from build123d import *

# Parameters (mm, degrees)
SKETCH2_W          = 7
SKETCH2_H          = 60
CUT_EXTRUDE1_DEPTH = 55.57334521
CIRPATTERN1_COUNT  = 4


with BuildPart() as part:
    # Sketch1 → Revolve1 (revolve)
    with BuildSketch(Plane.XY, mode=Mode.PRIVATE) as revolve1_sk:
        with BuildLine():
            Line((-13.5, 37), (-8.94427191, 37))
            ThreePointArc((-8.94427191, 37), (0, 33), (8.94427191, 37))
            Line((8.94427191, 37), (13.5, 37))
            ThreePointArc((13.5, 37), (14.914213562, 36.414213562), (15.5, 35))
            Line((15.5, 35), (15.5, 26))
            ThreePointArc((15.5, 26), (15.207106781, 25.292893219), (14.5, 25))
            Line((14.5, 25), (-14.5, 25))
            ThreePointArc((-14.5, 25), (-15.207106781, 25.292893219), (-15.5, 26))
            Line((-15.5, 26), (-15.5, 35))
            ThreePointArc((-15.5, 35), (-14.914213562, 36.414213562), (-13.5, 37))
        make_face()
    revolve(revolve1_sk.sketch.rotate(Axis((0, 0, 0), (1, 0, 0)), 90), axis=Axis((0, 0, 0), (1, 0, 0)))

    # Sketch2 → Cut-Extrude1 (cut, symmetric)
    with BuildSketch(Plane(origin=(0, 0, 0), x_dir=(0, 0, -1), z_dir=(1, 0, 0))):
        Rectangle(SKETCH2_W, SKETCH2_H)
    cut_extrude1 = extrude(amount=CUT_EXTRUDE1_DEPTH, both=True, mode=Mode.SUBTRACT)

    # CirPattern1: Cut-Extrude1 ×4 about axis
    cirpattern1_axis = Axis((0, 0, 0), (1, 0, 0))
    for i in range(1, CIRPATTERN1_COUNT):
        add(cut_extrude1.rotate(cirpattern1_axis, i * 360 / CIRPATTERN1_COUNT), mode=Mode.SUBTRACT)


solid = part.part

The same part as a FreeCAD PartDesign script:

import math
import FreeCAD as App
import Part
import Sketcher
from FreeCAD import Vector
Q = App.Units.Quantity

doc = App.newDocument("Part")
body = doc.addObject("PartDesign::Body", "Body")

# Sketch on XY plane
sketch1 = body.newObject("Sketcher::SketchObject", "Sketch")
sketch1.AttachmentSupport = (doc.getObject("XY_Plane"), [""])
sketch1.MapMode = "FlatFace"
sketch1.addGeometry(Part.LineSegment(Vector(-8.9, 37, 0), Vector(-13.5, 37, 0)), False)
sketch1.addGeometry(Part.ArcOfCircle(Part.Circle(Vector(-13.5, 35, 0), Vector(0, 0, 1), 2), math.radians(90), math.radians(180)), False)
sketch1.addGeometry(Part.LineSegment(Vector(-15.5, 35, 0), Vector(-15.5, 26, 0)), False)
sketch1.addGeometry(Part.ArcOfCircle(Part.Circle(Vector(-14.5, 26, 0), Vector(0, 0, 1), 1), math.radians(-180), math.radians(-90)), False)
sketch1.addGeometry(Part.LineSegment(Vector(-14.5, 25, 0), Vector(14.5, 25, 0)), False)
sketch1.addGeometry(Part.ArcOfCircle(Part.Circle(Vector(14.5, 26, 0), Vector(0, 0, 1), 1), math.radians(-90), math.radians(0)), False)
sketch1.addGeometry(Part.LineSegment(Vector(15.5, 26, 0), Vector(15.5, 35, 0)), False)
sketch1.addGeometry(Part.ArcOfCircle(Part.Circle(Vector(13.5, 35, 0), Vector(0, 0, 1), 2), math.radians(0), math.radians(90)), False)
sketch1.addGeometry(Part.LineSegment(Vector(13.5, 37, 0), Vector(8.9, 37, 0)), False)
sketch1.addGeometry(Part.ArcOfCircle(Part.Circle(Vector(0, 45, 0), Vector(0, 0, 1), 12), math.radians(-138), math.radians(-42)), False)
sketch1.addConstraint(Sketcher.Constraint("Tangent", 0, 2, 1, 1))
sketch1.addConstraint(Sketcher.Constraint("Tangent", 1, 2, 2, 1))
sketch1.addConstraint(Sketcher.Constraint("Tangent", 2, 2, 3, 1))
sketch1.addConstraint(Sketcher.Constraint("Tangent", 3, 2, 4, 1))
sketch1.addConstraint(Sketcher.Constraint("Tangent", 4, 2, 5, 1))
sketch1.addConstraint(Sketcher.Constraint("Tangent", 5, 2, 6, 1))
sketch1.addConstraint(Sketcher.Constraint("Tangent", 6, 2, 7, 1))
sketch1.addConstraint(Sketcher.Constraint("Tangent", 7, 2, 8, 1))
sketch1.addConstraint(Sketcher.Constraint("Coincident", 8, 2, 9, 2))
sketch1.addConstraint(Sketcher.Constraint("Coincident", 9, 1, 0, 1))
sketch1.addConstraint(Sketcher.Constraint("Horizontal", 0))
sketch1.addConstraint(Sketcher.Constraint("Vertical", 2))
sketch1.addConstraint(Sketcher.Constraint("Horizontal", 4))
sketch1.addConstraint(Sketcher.Constraint("Vertical", 6))
sketch1.addConstraint(Sketcher.Constraint("Horizontal", 8))
sketch1.addConstraint(Sketcher.Constraint("Equal", 3, 5))
sketch1.addConstraint(Sketcher.Constraint("Equal", 1, 7))
sketch1.addConstraint(Sketcher.Constraint("Symmetric", 1, 3, 7, 3, -2))
sketch1.addConstraint(Sketcher.Constraint("PointOnObject", 9, 3, -2))
sketch1.addConstraint(Sketcher.Constraint("Radius", 1, Q("2 mm")))
sketch1.addConstraint(Sketcher.Constraint("Radius", 3, Q("1 mm")))
sketch1.addConstraint(Sketcher.Constraint("Radius", 9, Q("12 mm")))
sketch1.addConstraint(Sketcher.Constraint("DistanceX", 4, 1, 4, 2, Q("29 mm")))
sketch1.addConstraint(Sketcher.Constraint("DistanceY", 2, 2, 2, 1, Q("9 mm")))
sketch1.addConstraint(Sketcher.Constraint("DistanceY", -1, 1, 1, 3, Q("35 mm")))
sketch1.addConstraint(Sketcher.Constraint("DistanceY", -1, 1, 9, 3, Q("45 mm")))
revolution = body.newObject("PartDesign::Revolution", "Revolution")
revolution.Profile = sketch1
revolution.ReferenceAxis = (sketch1, ["H_Axis"])
revolution.Angle = 360

# Sketch on YZ plane
sketch2 = body.newObject("Sketcher::SketchObject", "Sketch001")
sketch2.AttachmentSupport = (doc.getObject("YZ_Plane"), [""])
sketch2.MapMode = "FlatFace"
sketch2.addGeometry(Part.LineSegment(Vector(30, 4, 0), Vector(-30, 4, 0)), False)
sketch2.addGeometry(Part.LineSegment(Vector(-30, 4, 0), Vector(-30, -4, 0)), False)
sketch2.addGeometry(Part.LineSegment(Vector(-30, -4, 0), Vector(30, -4, 0)), False)
sketch2.addGeometry(Part.LineSegment(Vector(30, -4, 0), Vector(30, 4, 0)), False)
sketch2.addConstraint(Sketcher.Constraint("Coincident", 0, 2, 1, 1))
sketch2.addConstraint(Sketcher.Constraint("Coincident", 1, 2, 2, 1))
sketch2.addConstraint(Sketcher.Constraint("Coincident", 2, 2, 3, 1))
sketch2.addConstraint(Sketcher.Constraint("Coincident", 3, 2, 0, 1))
sketch2.addConstraint(Sketcher.Constraint("Horizontal", 0))
sketch2.addConstraint(Sketcher.Constraint("Vertical", 1))
sketch2.addConstraint(Sketcher.Constraint("Horizontal", 2))
sketch2.addConstraint(Sketcher.Constraint("Vertical", 3))
sketch2.addConstraint(Sketcher.Constraint("Symmetric", 0, 2, 2, 2, -1, 1))
sketch2.addConstraint(Sketcher.Constraint("DistanceX", 0, 2, 0, 1, Q("60 mm")))
sketch2.addConstraint(Sketcher.Constraint("DistanceY", 1, 2, 1, 1, Q("7 mm")))
pocket1 = body.newObject("PartDesign::Pocket", "Pocket")
pocket1.Profile = sketch2
pocket1.Length = 111.14669
pocket1.Midplane = True
doc.recompute()

polarpattern = body.newObject("PartDesign::PolarPattern", "PolarPattern")
polarpattern.Originals = [pocket1]
polarpattern.Axis = (doc.getObject("X_Axis"), [""])
polarpattern.Angle = 360
polarpattern.Occurrences = 4
body.Tip = polarpattern

doc.recompute()
